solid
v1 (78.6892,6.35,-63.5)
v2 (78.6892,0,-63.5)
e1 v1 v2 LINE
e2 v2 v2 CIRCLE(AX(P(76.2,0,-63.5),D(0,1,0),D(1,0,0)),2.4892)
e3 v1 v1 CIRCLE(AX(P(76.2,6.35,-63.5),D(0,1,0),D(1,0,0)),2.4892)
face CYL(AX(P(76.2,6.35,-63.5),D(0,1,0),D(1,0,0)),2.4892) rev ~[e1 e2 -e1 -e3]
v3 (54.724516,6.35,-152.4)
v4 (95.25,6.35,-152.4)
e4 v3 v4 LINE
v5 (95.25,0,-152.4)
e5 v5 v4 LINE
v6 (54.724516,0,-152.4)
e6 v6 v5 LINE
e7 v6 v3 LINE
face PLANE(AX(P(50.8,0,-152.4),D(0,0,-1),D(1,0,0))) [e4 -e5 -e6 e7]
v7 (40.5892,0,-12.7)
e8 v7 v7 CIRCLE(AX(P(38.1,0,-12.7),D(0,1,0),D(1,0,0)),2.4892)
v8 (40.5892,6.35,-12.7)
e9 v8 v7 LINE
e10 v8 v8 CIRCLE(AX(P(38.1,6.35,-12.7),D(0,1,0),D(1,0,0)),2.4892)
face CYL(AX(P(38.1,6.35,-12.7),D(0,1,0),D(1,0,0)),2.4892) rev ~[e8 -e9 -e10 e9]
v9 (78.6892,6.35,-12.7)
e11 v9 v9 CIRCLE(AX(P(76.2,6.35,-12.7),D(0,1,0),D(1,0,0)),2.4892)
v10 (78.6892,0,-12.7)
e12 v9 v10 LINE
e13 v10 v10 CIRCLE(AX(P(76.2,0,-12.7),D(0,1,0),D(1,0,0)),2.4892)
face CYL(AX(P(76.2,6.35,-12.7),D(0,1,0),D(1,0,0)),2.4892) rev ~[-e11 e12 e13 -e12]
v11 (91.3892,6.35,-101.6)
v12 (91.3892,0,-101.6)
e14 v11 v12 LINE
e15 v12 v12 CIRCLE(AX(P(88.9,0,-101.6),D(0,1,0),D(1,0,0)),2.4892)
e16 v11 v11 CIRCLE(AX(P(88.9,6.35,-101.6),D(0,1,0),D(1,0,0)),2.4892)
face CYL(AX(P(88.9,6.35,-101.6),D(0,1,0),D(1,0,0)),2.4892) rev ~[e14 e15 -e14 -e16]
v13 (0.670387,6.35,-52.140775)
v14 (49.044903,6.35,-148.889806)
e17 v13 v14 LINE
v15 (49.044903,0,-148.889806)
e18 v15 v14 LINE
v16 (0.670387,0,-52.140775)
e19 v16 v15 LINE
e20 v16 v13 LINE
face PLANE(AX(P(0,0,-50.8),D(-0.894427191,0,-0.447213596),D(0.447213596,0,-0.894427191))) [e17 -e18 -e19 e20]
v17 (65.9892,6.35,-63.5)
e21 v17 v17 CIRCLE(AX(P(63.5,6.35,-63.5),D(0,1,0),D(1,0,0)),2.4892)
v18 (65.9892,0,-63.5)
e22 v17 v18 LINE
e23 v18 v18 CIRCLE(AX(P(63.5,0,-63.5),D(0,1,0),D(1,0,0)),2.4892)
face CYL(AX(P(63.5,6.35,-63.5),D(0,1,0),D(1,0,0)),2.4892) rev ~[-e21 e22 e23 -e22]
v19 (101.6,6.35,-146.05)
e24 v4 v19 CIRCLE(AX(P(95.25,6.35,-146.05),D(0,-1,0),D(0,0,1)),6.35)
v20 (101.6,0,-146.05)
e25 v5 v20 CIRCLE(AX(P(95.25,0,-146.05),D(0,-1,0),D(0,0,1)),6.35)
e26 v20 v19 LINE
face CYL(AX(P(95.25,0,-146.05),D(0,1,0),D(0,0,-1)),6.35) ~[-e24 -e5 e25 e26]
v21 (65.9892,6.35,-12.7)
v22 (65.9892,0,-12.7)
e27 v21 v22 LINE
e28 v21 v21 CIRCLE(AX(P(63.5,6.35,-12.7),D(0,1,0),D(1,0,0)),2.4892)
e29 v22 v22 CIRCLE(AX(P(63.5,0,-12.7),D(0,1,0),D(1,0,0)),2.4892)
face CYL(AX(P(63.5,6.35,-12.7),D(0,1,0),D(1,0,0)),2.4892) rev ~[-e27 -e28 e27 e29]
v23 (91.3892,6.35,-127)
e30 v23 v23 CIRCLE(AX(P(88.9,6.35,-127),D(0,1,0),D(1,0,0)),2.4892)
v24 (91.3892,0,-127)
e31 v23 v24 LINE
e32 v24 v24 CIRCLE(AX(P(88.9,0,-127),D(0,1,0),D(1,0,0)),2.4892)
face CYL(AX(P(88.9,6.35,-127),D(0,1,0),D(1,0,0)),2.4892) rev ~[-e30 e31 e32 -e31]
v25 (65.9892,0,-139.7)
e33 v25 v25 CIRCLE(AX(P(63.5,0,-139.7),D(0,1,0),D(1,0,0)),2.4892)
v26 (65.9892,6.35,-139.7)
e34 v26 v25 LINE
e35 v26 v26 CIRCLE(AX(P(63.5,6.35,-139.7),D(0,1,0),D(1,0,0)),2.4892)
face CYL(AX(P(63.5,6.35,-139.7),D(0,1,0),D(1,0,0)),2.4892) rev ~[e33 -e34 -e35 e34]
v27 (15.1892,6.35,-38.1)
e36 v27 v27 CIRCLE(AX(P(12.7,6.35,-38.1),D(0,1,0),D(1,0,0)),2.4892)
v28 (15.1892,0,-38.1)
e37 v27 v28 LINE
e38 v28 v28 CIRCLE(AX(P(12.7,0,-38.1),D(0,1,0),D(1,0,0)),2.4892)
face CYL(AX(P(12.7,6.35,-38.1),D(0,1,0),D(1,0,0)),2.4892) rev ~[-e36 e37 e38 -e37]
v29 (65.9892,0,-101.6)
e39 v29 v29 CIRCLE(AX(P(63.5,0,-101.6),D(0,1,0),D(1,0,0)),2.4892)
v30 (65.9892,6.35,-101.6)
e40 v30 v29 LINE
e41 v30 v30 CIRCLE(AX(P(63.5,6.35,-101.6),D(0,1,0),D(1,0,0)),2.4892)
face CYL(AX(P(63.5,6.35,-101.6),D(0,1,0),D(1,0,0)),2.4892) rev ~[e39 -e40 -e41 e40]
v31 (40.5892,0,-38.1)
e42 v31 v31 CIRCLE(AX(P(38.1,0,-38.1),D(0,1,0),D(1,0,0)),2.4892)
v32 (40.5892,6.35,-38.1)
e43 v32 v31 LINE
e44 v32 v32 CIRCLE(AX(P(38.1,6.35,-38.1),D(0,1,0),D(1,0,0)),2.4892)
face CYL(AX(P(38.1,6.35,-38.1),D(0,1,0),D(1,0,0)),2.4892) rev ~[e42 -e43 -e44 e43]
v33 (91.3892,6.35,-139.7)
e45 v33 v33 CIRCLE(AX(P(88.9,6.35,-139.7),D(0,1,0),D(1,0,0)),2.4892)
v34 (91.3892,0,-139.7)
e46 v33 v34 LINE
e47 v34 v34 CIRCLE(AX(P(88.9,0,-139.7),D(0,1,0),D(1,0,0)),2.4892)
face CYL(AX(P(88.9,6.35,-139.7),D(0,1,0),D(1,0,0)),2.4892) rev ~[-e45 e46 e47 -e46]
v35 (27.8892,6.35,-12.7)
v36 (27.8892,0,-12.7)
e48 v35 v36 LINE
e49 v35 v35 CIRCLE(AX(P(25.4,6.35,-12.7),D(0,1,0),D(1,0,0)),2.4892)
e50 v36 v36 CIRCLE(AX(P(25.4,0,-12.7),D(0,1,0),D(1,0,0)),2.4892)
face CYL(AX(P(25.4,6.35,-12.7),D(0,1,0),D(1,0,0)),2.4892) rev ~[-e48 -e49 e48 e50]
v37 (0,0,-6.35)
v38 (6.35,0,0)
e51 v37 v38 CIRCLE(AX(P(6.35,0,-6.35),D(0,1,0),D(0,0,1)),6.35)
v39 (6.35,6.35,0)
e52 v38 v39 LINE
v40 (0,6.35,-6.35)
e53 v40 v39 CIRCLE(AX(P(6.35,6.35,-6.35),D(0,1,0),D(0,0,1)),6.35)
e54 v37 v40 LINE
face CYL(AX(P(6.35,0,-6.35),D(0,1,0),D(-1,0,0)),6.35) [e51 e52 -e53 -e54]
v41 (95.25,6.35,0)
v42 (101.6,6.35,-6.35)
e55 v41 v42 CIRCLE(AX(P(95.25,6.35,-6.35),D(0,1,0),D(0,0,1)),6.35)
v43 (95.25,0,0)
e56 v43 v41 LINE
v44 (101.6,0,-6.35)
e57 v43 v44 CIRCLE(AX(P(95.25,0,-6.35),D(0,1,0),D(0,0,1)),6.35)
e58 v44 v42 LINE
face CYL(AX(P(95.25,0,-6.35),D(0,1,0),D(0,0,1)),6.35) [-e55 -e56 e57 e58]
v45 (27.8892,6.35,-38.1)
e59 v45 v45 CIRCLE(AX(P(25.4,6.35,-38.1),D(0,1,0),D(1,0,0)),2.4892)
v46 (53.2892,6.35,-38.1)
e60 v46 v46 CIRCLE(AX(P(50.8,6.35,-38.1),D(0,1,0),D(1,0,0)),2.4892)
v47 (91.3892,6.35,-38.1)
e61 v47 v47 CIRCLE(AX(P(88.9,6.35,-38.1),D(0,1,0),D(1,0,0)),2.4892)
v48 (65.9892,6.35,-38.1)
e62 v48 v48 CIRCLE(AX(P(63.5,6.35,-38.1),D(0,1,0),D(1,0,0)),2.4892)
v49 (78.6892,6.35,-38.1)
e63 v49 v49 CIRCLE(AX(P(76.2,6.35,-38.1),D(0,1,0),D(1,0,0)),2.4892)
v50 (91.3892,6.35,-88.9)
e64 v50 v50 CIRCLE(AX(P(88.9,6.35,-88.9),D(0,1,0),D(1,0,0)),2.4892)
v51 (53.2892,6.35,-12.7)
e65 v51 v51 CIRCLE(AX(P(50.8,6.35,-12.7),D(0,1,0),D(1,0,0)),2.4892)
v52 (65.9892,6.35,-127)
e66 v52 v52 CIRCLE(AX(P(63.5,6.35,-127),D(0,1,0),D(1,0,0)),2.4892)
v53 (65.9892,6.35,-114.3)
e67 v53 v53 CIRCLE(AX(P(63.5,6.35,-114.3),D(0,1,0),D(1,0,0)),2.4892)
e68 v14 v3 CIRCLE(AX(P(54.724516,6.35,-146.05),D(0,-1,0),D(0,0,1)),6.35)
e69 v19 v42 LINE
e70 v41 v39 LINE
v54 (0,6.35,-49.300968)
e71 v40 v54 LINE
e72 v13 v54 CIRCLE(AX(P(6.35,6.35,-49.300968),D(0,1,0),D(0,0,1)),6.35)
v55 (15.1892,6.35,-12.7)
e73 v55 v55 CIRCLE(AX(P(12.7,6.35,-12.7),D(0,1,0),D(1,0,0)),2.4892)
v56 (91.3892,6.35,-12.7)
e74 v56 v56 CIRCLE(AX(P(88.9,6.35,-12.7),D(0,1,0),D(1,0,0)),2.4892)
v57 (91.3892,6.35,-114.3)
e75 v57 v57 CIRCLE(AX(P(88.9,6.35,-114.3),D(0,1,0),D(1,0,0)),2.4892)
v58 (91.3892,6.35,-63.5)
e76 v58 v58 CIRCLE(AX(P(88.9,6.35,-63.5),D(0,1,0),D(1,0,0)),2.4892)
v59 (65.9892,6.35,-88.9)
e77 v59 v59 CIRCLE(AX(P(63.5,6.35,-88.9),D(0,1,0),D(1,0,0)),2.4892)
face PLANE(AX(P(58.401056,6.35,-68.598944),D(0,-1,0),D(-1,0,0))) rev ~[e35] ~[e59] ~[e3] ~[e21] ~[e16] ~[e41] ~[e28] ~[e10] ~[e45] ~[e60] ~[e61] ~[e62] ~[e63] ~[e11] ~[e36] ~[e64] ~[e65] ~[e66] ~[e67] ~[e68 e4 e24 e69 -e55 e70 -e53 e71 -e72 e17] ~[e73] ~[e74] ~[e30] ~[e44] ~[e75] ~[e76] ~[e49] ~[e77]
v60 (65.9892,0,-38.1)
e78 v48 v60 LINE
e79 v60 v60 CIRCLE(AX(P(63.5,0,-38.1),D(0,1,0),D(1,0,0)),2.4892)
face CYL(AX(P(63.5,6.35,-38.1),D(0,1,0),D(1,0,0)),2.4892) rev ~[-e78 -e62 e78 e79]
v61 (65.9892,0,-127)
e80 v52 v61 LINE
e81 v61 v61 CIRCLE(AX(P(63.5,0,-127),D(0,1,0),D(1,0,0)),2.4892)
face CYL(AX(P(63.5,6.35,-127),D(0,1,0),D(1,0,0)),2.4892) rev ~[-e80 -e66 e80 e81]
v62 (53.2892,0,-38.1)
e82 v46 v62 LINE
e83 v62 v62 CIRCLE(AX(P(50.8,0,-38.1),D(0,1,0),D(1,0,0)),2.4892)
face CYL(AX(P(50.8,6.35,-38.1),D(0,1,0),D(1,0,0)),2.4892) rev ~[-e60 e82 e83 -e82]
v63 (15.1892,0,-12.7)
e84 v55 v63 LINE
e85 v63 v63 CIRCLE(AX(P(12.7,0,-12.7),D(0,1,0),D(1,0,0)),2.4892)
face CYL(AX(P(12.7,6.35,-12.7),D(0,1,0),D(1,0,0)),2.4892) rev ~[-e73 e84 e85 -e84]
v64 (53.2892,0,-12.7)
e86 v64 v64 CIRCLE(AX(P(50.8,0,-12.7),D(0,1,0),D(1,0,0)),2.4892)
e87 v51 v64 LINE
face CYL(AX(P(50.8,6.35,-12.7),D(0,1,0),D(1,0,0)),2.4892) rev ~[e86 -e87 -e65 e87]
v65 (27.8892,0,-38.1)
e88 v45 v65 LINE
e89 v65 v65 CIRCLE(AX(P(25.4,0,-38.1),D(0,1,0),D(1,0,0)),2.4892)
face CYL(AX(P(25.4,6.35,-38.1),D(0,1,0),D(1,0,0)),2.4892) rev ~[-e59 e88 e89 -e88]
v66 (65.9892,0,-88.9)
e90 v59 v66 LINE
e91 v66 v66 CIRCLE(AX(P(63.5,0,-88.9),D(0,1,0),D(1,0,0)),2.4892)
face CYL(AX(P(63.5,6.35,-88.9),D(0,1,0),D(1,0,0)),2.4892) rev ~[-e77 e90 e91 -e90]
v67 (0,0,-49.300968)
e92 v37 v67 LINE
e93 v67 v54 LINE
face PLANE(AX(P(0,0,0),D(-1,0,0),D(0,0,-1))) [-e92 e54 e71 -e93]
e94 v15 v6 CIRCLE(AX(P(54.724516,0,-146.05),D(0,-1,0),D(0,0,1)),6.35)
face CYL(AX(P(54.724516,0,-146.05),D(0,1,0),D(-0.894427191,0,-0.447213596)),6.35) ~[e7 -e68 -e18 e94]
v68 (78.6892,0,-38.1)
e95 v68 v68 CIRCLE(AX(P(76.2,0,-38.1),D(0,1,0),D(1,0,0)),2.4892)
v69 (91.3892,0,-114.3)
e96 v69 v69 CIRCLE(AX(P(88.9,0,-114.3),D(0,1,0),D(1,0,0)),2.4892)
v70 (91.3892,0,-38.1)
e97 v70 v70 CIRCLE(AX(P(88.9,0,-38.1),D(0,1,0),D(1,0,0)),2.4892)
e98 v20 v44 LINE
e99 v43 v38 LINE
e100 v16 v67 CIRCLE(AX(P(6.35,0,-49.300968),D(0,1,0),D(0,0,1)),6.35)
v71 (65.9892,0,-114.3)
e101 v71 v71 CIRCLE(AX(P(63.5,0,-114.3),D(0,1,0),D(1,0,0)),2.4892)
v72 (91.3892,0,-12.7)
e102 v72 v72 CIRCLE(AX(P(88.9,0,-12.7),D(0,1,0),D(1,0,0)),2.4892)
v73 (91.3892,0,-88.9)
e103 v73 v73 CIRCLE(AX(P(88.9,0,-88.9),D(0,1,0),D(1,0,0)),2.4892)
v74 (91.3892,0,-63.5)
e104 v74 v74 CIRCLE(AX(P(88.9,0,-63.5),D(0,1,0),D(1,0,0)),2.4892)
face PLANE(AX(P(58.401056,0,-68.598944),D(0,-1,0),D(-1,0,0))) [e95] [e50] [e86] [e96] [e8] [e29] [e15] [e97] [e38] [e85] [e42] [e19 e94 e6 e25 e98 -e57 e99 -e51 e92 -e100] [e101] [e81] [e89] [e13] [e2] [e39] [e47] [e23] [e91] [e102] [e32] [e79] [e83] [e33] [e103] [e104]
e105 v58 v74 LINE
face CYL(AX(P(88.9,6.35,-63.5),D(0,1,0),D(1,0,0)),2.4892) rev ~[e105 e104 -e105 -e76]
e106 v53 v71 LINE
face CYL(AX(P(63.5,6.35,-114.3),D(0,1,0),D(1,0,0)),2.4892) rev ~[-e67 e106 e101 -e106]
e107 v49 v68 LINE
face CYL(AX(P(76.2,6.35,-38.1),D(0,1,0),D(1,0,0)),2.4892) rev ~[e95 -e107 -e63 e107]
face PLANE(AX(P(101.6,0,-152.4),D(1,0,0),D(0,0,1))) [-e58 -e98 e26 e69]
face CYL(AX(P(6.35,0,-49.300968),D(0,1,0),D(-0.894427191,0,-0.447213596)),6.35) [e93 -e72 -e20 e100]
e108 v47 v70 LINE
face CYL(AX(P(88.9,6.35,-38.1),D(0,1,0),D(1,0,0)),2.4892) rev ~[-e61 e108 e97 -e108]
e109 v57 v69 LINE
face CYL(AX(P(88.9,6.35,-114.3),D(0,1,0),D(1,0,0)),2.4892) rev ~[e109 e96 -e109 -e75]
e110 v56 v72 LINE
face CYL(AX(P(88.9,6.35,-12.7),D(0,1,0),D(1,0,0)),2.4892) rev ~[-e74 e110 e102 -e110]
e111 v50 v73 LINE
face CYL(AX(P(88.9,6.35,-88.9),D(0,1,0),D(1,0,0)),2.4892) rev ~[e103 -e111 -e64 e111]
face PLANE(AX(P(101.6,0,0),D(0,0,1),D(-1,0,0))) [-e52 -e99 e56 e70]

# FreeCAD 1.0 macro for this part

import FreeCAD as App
import Part
import Sketcher
Q = App.Units.Quantity


def edges_at(feature, points):
    """Names of the edges that pass closest to the given points."""
    edges = feature.Shape.Edges
    near = lambda p: min(range(len(edges)), key=lambda i: edges[i].distToShape(Part.Vertex(*p))[0])
    return sorted({f"Edge{near(p) + 1}" for p in points})

doc = App.newDocument("Part")
body = doc.addObject("PartDesign::Body", "Body")

sketch1 = body.newObject("Sketcher::SketchObject", "Sketch")
sketch1.AttachmentSupport = (doc.getObject("XZ_Plane"), [""])
sketch1.MapMode = "FlatFace"
sketch1.addGeometry([
    Part.LineSegment(App.Vector(51, -152, 0), App.Vector(0, -51, 0)),
    Part.LineSegment(App.Vector(0, -51, 0), App.Vector(0, 0, 0)),
    Part.LineSegment(App.Vector(0, 0, 0), App.Vector(102, 0, 0)),
    Part.LineSegment(App.Vector(102, 0, 0), App.Vector(102, -152, 0)),
    Part.LineSegment(App.Vector(102, -152, 0), App.Vector(51, -152, 0)),
], False)
sketch1.addConstraint([
    Sketcher.Constraint("Coincident", 0, 2, 1, 1),
    Sketcher.Constraint("Coincident", 1, 2, 2, 1),
    Sketcher.Constraint("Coincident", 2, 2, 3, 1),
    Sketcher.Constraint("Coincident", 3, 2, 4, 1),
    Sketcher.Constraint("Coincident", 4, 2, 0, 1),
    Sketcher.Constraint("Vertical", 1),
    Sketcher.Constraint("Horizontal", 2),
    Sketcher.Constraint("Vertical", 3),
    Sketcher.Constraint("Horizontal", 4),
    Sketcher.Constraint("Coincident", 1, 2, -1, 1),
    Sketcher.Constraint("Equal", 4, 1),
    Sketcher.Constraint("DistanceX", 2, 1, 2, 2, Q("4 in")),
    Sketcher.Constraint("DistanceX", 4, 2, 4, 1, Q("2 in")),
    Sketcher.Constraint("DistanceY", 3, 2, 3, 1, Q("6 in")),
])
pad1 = body.newObject("PartDesign::Pad", "Pad")
pad1.Profile = sketch1
pad1.Length = Q("0.25 in")
pad1.Reversed = True

sketch2 = body.newObject("Sketcher::SketchObject", "Sketch001")
sketch2.AttachmentSupport = (doc.getObject("XZ_Plane"), [""])
sketch2.MapMode = "FlatFace"
sketch2.AttachmentOffset = App.Placement(App.Vector(0, 0, -0.25 * 25.4), App.Rotation())
sketch2.addGeometry([
    Part.Circle(App.Vector(88.9, -12.7, 0), App.Vector(0, 0, 1), 2.5),
    Part.Circle(App.Vector(76.2, -12.7, 0), App.Vector(0, 0, 1), 2.5),
    Part.Circle(App.Vector(63.5, -12.7, 0), App.Vector(0, 0, 1), 2.5),
    Part.Circle(App.Vector(50.8, -12.7, 0), App.Vector(0, 0, 1), 2.5),
    Part.Circle(App.Vector(38.1, -12.7, 0), App.Vector(0, 0, 1), 2.5),
    Part.Circle(App.Vector(25.4, -12.7, 0), App.Vector(0, 0, 1), 2.5),
    Part.Circle(App.Vector(12.7, -12.7, 0), App.Vector(0, 0, 1), 2.5),
    Part.Circle(App.Vector(76.2, -38.1, 0), App.Vector(0, 0, 1), 2.5),
    Part.Circle(App.Vector(63.5, -38.1, 0), App.Vector(0, 0, 1), 2.5),
    Part.Circle(App.Vector(50.8, -38.1, 0), App.Vector(0, 0, 1), 2.5),
    Part.Circle(App.Vector(38.1, -38.1, 0), App.Vector(0, 0, 1), 2.5),
    Part.Circle(App.Vector(25.4, -38.1, 0), App.Vector(0, 0, 1), 2.5),
    Part.Circle(App.Vector(12.7, -38.1, 0), App.Vector(0, 0, 1), 2.5),
    Part.Circle(App.Vector(76.2, -63.5, 0), App.Vector(0, 0, 1), 2.5),
    Part.Circle(App.Vector(63.5, -63.5, 0), App.Vector(0, 0, 1), 2.5),
    Part.Circle(App.Vector(63.5, -88.9, 0), App.Vector(0, 0, 1), 2.5),
    Part.Circle(App.Vector(63.5, -101.6, 0), App.Vector(0, 0, 1), 2.5),
    Part.Circle(App.Vector(63.5, -114.3, 0), App.Vector(0, 0, 1), 2.5),
    Part.Circle(App.Vector(63.5, -127, 0), App.Vector(0, 0, 1), 2.5),
    Part.Circle(App.Vector(63.5, -139.7, 0), App.Vector(0, 0, 1), 2.5),
    Part.Circle(App.Vector(88.9, -38.1, 0), App.Vector(0, 0, 1), 2.5),
    Part.Circle(App.Vector(88.9, -63.5, 0), App.Vector(0, 0, 1), 2.5),
    Part.Circle(App.Vector(88.9, -88.9, 0), App.Vector(0, 0, 1), 2.5),
    Part.Circle(App.Vector(88.9, -101.6, 0), App.Vector(0, 0, 1), 2.5),
    Part.Circle(App.Vector(88.9, -114.3, 0), App.Vector(0, 0, 1), 2.5),
    Part.Circle(App.Vector(88.9, -127, 0), App.Vector(0, 0, 1), 2.5),
    Part.Circle(App.Vector(88.9, -139.7, 0), App.Vector(0, 0, 1), 2.5),
], False)
sketch2.addConstraint([
    Sketcher.Constraint("Equal", 0, 1),
    Sketcher.Constraint("Equal", 1, 2),
    Sketcher.Constraint("Equal", 2, 3),
    Sketcher.Constraint("Equal", 3, 4),
    Sketcher.Constraint("Equal", 4, 5),
    Sketcher.Constraint("Equal", 5, 6),
    Sketcher.Constraint("Equal", 6, 7),
    Sketcher.Constraint("Equal", 7, 8),
    Sketcher.Constraint("Equal", 8, 9),
    Sketcher.Constraint("Equal", 9, 10),
    Sketcher.Constraint("Equal", 10, 11),
    Sketcher.Constraint("Equal", 11, 12),
    Sketcher.Constraint("Equal", 12, 13),
    Sketcher.Constraint("Equal", 13, 14),
    Sketcher.Constraint("Equal", 14, 15),
    Sketcher.Constraint("Equal", 15, 16),
    Sketcher.Constraint("Equal", 16, 17),
    Sketcher.Constraint("Equal", 17, 18),
    Sketcher.Constraint("Equal", 18, 19),
    Sketcher.Constraint("Equal", 19, 20),
    Sketcher.Constraint("Equal", 20, 21),
    Sketcher.Constraint("Equal", 21, 22),
    Sketcher.Constraint("Equal", 22, 23),
    Sketcher.Constraint("Equal", 23, 24),
    Sketcher.Constraint("Equal", 24, 25),
    Sketcher.Constraint("Equal", 25, 26),
    Sketcher.Constraint("Horizontal", 0, 3, 1, 3),
    Sketcher.Constraint("Horizontal", 1, 3, 2, 3),
    Sketcher.Constraint("Horizontal", 2, 3, 3, 3),
    Sketcher.Constraint("Horizontal", 3, 3, 4, 3),
    Sketcher.Constraint("Horizontal", 4, 3, 5, 3),
    Sketcher.Constraint("Horizontal", 5, 3, 6, 3),
    Sketcher.Constraint("Horizontal", 7, 3, 8, 3),
    Sketcher.Constraint("Horizontal", 8, 3, 9, 3),
    Sketcher.Constraint("Horizontal", 9, 3, 10, 3),
    Sketcher.Constraint("Horizontal", 10, 3, 11, 3),
    Sketcher.Constraint("Horizontal", 11, 3, 12, 3),
    Sketcher.Constraint("Horizontal", 13, 3, 14, 3),
    Sketcher.Constraint("Horizontal", 12, 3, 20, 3),
    Sketcher.Constraint("Horizontal", 14, 3, 21, 3),
    Sketcher.Constraint("Horizontal", 15, 3, 22, 3),
    Sketcher.Constraint("Horizontal", 16, 3, 23, 3),
    Sketcher.Constraint("Horizontal", 17, 3, 24, 3),
    Sketcher.Constraint("Horizontal", 18, 3, 25, 3),
    Sketcher.Constraint("Horizontal", 19, 3, 26, 3),
    Sketcher.Constraint("Vertical", 1, 3, 7, 3),
    Sketcher.Constraint("Vertical", 2, 3, 8, 3),
    Sketcher.Constraint("Vertical", 3, 3, 9, 3),
    Sketcher.Constraint("Vertical", 4, 3, 10, 3),
    Sketcher.Constraint("Vertical", 5, 3, 11, 3),
    Sketcher.Constraint("Vertical", 6, 3, 12, 3),
    Sketcher.Constraint("Vertical", 7, 3, 13, 3),
    Sketcher.Constraint("Vertical", 8, 3, 14, 3),
    Sketcher.Constraint("Vertical", 14, 3, 15, 3),
    Sketcher.Constraint("Vertical", 15, 3, 16, 3),
    Sketcher.Constraint("Vertical", 16, 3, 17, 3),
    Sketcher.Constraint("Vertical", 17, 3, 18, 3),
    Sketcher.Constraint("Vertical", 18, 3, 19, 3),
    Sketcher.Constraint("Vertical", 0, 3, 20, 3),
    Sketcher.Constraint("Vertical", 20, 3, 21, 3),
    Sketcher.Constraint("Vertical", 21, 3, 22, 3),
    Sketcher.Constraint("Vertical", 22, 3, 23, 3),
    Sketcher.Constraint("Vertical", 23, 3, 24, 3),
    Sketcher.Constraint("Vertical", 24, 3, 25, 3),
    Sketcher.Constraint("Vertical", 25, 3, 26, 3),
    Sketcher.Constraint("Diameter", 0, Q("0.196 in")),
    Sketcher.Constraint("DistanceX", -1, 1, 1, 3, Q("3 in")),
    Sketcher.Constraint("DistanceX", -1, 1, 3, 3, Q("2 in")),
    Sketcher.Constraint("DistanceX", -1, 1, 5, 3, Q("1 in")),
    Sketcher.Constraint("DistanceY", 16, 3, -1, 1, Q("4 in")),
    Sketcher.Constraint("DistanceY", 18, 3, -1, 1, Q("5 in")),
    Sketcher.Constraint("DistanceX", 2, 3, 0, 3, Q("1 in")),
    Sketcher.Constraint("DistanceX", 4, 3, 2, 3, Q("1 in")),
    Sketcher.Constraint("DistanceX", 6, 3, 4, 3, Q("1 in")),
    Sketcher.Constraint("DistanceY", 7, 3, 1, 3, Q("1 in")),
    Sketcher.Constraint("DistanceY", 13, 3, 7, 3, Q("1 in")),
    Sketcher.Constraint("DistanceY", 15, 3, 14, 3, Q("1 in")),
    Sketcher.Constraint("DistanceY", 17, 3, 15, 3, Q("1 in")),
    Sketcher.Constraint("DistanceY", 19, 3, 17, 3, Q("1 in")),
    Sketcher.Constraint("DistanceX", -1, 1, 0, 3, Q("3.5 in")),
    Sketcher.Constraint("DistanceY", 0, 3, -1, 1, Q("0.5 in")),
])
pocket1 = body.newObject("PartDesign::Pocket", "Pocket")
pocket1.Profile = sketch2
pocket1.Type = "ThroughAll"
pocket1.Reversed = True
doc.recompute()

fillet = body.newObject("PartDesign::Fillet", "Fillet")
fillet.Base = (pocket1, edges_at(pocket1, [
    (0, 3.175, -50.8),
    (50.8, 3.175, -152.4),
    (101.6, 3.175, -152.4),
    (101.6, 3.175, 0),
    (0, 3.175, 0),
]))
fillet.Radius = Q("0.25 in")

doc.recompute()
